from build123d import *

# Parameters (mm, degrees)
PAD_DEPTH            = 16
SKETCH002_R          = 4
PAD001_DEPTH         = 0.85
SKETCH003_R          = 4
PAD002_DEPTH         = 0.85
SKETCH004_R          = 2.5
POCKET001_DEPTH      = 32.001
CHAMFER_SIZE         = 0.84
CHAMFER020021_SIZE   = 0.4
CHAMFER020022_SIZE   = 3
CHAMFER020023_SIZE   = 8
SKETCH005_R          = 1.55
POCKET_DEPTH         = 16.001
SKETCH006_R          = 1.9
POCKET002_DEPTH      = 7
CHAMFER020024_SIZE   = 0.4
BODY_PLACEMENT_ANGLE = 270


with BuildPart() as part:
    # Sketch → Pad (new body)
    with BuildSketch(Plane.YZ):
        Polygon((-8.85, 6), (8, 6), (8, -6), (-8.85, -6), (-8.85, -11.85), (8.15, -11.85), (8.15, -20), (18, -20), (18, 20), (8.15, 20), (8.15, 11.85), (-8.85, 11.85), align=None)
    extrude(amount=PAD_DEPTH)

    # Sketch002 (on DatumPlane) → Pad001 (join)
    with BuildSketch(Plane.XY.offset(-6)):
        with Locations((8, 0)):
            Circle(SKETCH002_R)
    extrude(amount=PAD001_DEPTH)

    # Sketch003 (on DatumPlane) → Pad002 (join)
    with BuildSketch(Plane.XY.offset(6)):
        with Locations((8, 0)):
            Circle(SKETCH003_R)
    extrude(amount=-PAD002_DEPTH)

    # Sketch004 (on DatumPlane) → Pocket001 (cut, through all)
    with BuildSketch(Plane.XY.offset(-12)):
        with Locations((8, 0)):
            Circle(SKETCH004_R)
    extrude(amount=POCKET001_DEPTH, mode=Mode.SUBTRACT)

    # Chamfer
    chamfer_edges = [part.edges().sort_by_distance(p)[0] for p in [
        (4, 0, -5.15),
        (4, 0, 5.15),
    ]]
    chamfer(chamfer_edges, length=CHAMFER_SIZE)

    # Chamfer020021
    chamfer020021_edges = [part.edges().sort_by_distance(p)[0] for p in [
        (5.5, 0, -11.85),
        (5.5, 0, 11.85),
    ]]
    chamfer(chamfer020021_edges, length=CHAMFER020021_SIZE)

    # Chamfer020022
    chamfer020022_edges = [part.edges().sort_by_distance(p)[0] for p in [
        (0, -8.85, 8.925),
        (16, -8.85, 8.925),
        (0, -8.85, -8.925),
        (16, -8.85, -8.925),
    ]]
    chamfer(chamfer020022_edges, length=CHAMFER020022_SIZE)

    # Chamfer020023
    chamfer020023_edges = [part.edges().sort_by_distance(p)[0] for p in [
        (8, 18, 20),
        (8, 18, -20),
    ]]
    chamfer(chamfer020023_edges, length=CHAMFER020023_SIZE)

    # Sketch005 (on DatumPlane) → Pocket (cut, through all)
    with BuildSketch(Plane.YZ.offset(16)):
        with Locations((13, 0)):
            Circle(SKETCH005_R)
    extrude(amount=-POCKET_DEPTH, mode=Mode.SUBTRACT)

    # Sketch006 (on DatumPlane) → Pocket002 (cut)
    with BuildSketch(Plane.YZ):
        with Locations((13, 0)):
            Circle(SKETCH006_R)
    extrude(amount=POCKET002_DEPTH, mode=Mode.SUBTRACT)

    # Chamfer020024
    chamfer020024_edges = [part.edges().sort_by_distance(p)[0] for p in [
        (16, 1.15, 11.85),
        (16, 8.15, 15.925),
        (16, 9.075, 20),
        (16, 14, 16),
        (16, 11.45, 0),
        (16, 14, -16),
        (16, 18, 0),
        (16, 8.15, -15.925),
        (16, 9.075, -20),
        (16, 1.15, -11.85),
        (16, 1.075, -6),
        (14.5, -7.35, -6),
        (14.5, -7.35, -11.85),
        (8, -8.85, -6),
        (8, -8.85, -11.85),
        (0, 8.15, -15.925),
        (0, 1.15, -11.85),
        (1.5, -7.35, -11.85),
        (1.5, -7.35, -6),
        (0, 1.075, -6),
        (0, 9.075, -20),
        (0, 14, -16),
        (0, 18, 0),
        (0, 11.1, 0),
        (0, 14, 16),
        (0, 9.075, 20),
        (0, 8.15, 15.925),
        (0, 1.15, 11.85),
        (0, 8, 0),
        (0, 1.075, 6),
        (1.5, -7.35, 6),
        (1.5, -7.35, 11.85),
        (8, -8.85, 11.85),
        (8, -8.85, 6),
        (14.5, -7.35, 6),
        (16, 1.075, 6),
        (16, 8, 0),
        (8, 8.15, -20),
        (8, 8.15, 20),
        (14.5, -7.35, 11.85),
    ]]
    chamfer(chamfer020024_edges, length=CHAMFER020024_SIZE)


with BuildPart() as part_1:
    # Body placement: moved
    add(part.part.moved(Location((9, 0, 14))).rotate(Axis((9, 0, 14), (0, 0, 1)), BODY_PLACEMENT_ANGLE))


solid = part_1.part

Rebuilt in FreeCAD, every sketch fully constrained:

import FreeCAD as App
import Part
import Sketcher
Q = App.Units.Quantity


def edges_at(feature, points):
    """Names of the edges that pass closest to the given points."""
    edges = feature.Shape.Edges
    near = lambda p: min(range(len(edges)), key=lambda i: edges[i].distToShape(Part.Vertex(*p))[0])
    return sorted({f"Edge{near(p) + 1}" for p in points})


def add_polygon(sketch, points):
    """Adds a closed chain of lines whose ends are joined by coincident constraints."""
    first, n = sketch.GeometryCount, len(points)
    for a, b in zip(points, points[1:] + points[:1]):
        sketch.addGeometry(Part.LineSegment(App.Vector(*a, 0), App.Vector(*b, 0)), False)
    for i in range(n):
        sketch.addConstraint(Sketcher.Constraint("Coincident", first + i, 2, first + (i + 1) % n, 1))

doc = App.newDocument("Part")
params = doc.addObject("Spreadsheet::Sheet", "Params")
for row, (alias, value) in enumerate([
    ("sketch1_width", "17 mm"),
    ("sketch1_height", "12 mm"),
    ("sketch1_height2", "40 mm"),
    ("sketch1_width2", "16.85 mm"),
    ("sketch1_height3", "5.85 mm"),
    ("pad1_length", "16 mm"),
    ("sketch2_diameter", "8 mm"),
    ("pad2_length", "0.85 mm"),
    ("sketch3_diameter", "8 mm"),
    ("pad3_length", "0.85 mm"),
    ("sketch4_diameter", "5 mm"),
    ("chamfer_size", "0.84 mm"),
    ("chamfer2_size", "0.4 mm"),
    ("chamfer3_size", "3 mm"),
    ("chamfer4_size", "8 mm"),
    ("sketch5_diameter", "3.1 mm"),
    ("sketch6_diameter", "3.8 mm"),
    ("pocket3_length", "7 mm"),
    ("chamfer5_size", "0.4 mm"),
], start=1):
    params.set(f"A{row}", alias)
    params.set(f"B{row}", "=" + value)
    params.setAlias(f"B{row}", alias)

body = doc.addObject("PartDesign::Body", "Body")

sketch1 = doc.addObject("Sketcher::SketchObject", "Sketch")
body.addObject(sketch1)
sketch1.AttachmentSupport = (doc.YZ_Plane, [""])
sketch1.MapMode = "FlatFace"
add_polygon(sketch1, [(-9, 6), (8, 6), (8, -6), (-9, -6), (-9, -12), (8, -12), (8, -20), (18, -20), (18, 20), (8, 20), (8, 12), (-9, 12)])
sketch1.addConstraint(Sketcher.Constraint("Horizontal", 0))
sketch1.addConstraint(Sketcher.Constraint("Vertical", 1))
sketch1.addConstraint(Sketcher.Constraint("Horizontal", 2))
sketch1.addConstraint(Sketcher.Constraint("Vertical", 3))
sketch1.addConstraint(Sketcher.Constraint("Horizontal", 4))
sketch1.addConstraint(Sketcher.Constraint("Vertical", 5))
sketch1.addConstraint(Sketcher.Constraint("Horizontal", 6))
sketch1.addConstraint(Sketcher.Constraint("Vertical", 7))
sketch1.addConstraint(Sketcher.Constraint("Horizontal", 8))
sketch1.addConstraint(Sketcher.Constraint("Vertical", 9))
sketch1.addConstraint(Sketcher.Constraint("Horizontal", 10))
sketch1.addConstraint(Sketcher.Constraint("Vertical", 11))
sketch1.addConstraint(Sketcher.Constraint("Symmetric", 5, 2, 8, 2, -1))
sketch1.addConstraint(Sketcher.Constraint("Symmetric", 3, 2, 10, 2, -1))
sketch1.addConstraint(Sketcher.Constraint("Equal", 3, 11))
sketch1.addConstraint(Sketcher.Constraint("DistanceX", 4, 1, 4, 2, Q("17 mm")))
sketch1.addConstraint(Sketcher.Constraint("DistanceY", 1, 2, 1, 1, Q("12 mm")))
sketch1.addConstraint(Sketcher.Constraint("DistanceY", 7, 1, 7, 2, Q("40 mm")))
sketch1.addConstraint(Sketcher.Constraint("DistanceX", -1, 1, 0, 2, Q("8 mm")))
sketch1.addConstraint(Sketcher.Constraint("DistanceX", -1, 1, 6, 2, Q("18 mm")))
sketch1.addConstraint(Sketcher.Constraint("DistanceX", 0, 1, 0, 2, Q("16.85 mm")))
sketch1.addConstraint(Sketcher.Constraint("DistanceY", 3, 2, 3, 1, Q("5.85 mm")))
sketch1.setExpression("Constraints[27]", "Params.sketch1_width")
sketch1.setExpression("Constraints[28]", "Params.sketch1_height")
sketch1.setExpression("Constraints[29]", "Params.sketch1_height2")
sketch1.setExpression("Constraints[32]", "Params.sketch1_width2")
sketch1.setExpression("Constraints[33]", "Params.sketch1_height3")
pad1 = doc.addObject("PartDesign::Pad", "Pad")
body.addObject(pad1)
pad1.Profile = sketch1
pad1.setExpression("Length", "Params.pad1_length")

sketch2 = doc.addObject("Sketcher::SketchObject", "Sketch001")
body.addObject(sketch2)
sketch2.AttachmentSupport = (doc.XY_Plane, [""])
sketch2.MapMode = "FlatFace"
sketch2.AttachmentOffset = App.Placement(App.Vector(0, 0, -6), App.Rotation())
sketch2.addGeometry(Part.Circle(App.Vector(8, 0, 0), App.Vector(0, 0, 1), 4), False)
sketch2.addConstraint(Sketcher.Constraint("PointOnObject", 0, 3, -1))
sketch2.addConstraint(Sketcher.Constraint("Diameter", 0, Q("8 mm")))
sketch2.addConstraint(Sketcher.Constraint("DistanceX", -1, 1, 0, 3, Q("8 mm")))
sketch2.setExpression("Constraints[1]", "Params.sketch2_diameter")
pad2 = doc.addObject("PartDesign::Pad", "Pad001")
body.addObject(pad2)
pad2.Profile = sketch2
pad2.setExpression("Length", "Params.pad2_length")

sketch3 = doc.addObject("Sketcher::SketchObject", "Sketch002")
body.addObject(sketch3)
sketch3.AttachmentSupport = (doc.XY_Plane, [""])
sketch3.MapMode = "FlatFace"
sketch3.AttachmentOffset = App.Placement(App.Vector(0, 0, 6), App.Rotation())
sketch3.addGeometry(Part.Circle(App.Vector(8, 0, 0), App.Vector(0, 0, 1), 4), False)
sketch3.addConstraint(Sketcher.Constraint("PointOnObject", 0, 3, -1))
sketch3.addConstraint(Sketcher.Constraint("Diameter", 0, Q("8 mm")))
sketch3.addConstraint(Sketcher.Constraint("DistanceX", -1, 1, 0, 3, Q("8 mm")))
sketch3.setExpression("Constraints[1]", "Params.sketch3_diameter")
pad3 = doc.addObject("PartDesign::Pad", "Pad002")
body.addObject(pad3)
pad3.Profile = sketch3
pad3.setExpression("Length", "Params.pad3_length")
pad3.Reversed = True

sketch4 = doc.addObject("Sketcher::SketchObject", "Sketch003")
body.addObject(sketch4)
sketch4.AttachmentSupport = (doc.XY_Plane, [""])
sketch4.MapMode = "FlatFace"
sketch4.AttachmentOffset = App.Placement(App.Vector(0, 0, -12), App.Rotation())
sketch4.addGeometry(Part.Circle(App.Vector(8, 0, 0), App.Vector(0, 0, 1), 2.5), False)
sketch4.addConstraint(Sketcher.Constraint("PointOnObject", 0, 3, -1))
sketch4.addConstraint(Sketcher.Constraint("Diameter", 0, Q("5 mm")))
sketch4.addConstraint(Sketcher.Constraint("DistanceX", -1, 1, 0, 3, Q("8 mm")))
sketch4.setExpression("Constraints[1]", "Params.sketch4_diameter")
pocket1 = doc.addObject("PartDesign::Pocket", "Pocket")
body.addObject(pocket1)
pocket1.Profile = sketch4
pocket1.Type = "ThroughAll"
pocket1.Reversed = True
doc.recompute()

chamfer = doc.addObject("PartDesign::Chamfer", "Chamfer")
body.addObject(chamfer)
chamfer.Base = (pocket1, edges_at(pocket1, [(4, 0, -5.15), (4, 0, 5.15)]))
chamfer.setExpression("Size", "Params.chamfer_size")
doc.recompute()

chamfer2 = doc.addObject("PartDesign::Chamfer", "Chamfer001")
body.addObject(chamfer2)
chamfer2.Base = (chamfer, edges_at(chamfer, [(5.5, 0, -11.85), (5.5, 0, 11.85)]))
chamfer2.setExpression("Size", "Params.chamfer2_size")
doc.recompute()

chamfer3 = doc.addObject("PartDesign::Chamfer", "Chamfer002")
body.addObject(chamfer3)
chamfer3.Base = (chamfer2, edges_at(chamfer2, [
    (0, -8.85, 8.925),
    (16, -8.85, 8.925),
    (0, -8.85, -8.925),
    (16, -8.85, -8.925),
]))
chamfer3.setExpression("Size", "Params.chamfer3_size")
doc.recompute()

chamfer4 = doc.addObject("PartDesign::Chamfer", "Chamfer003")
body.addObject(chamfer4)
chamfer4.Base = (chamfer3, edges_at(chamfer3, [(8, 18, 20), (8, 18, -20)]))
chamfer4.setExpression("Size", "Params.chamfer4_size")

sketch5 = doc.addObject("Sketcher::SketchObject", "Sketch004")
body.addObject(sketch5)
sketch5.AttachmentSupport = (doc.YZ_Plane, [""])
sketch5.MapMode = "FlatFace"
sketch5.AttachmentOffset = App.Placement(App.Vector(0, 0, 16), App.Rotation())
sketch5.addGeometry(Part.Circle(App.Vector(13, 0, 0), App.Vector(0, 0, 1), 1.6), False)
sketch5.addConstraint(Sketcher.Constraint("PointOnObject", 0, 3, -1))
sketch5.addConstraint(Sketcher.Constraint("Diameter", 0, Q("3.1 mm")))
sketch5.addConstraint(Sketcher.Constraint("DistanceX", -1, 1, 0, 3, Q("13 mm")))
sketch5.setExpression("Constraints[1]", "Params.sketch5_diameter")
pocket2 = doc.addObject("PartDesign::Pocket", "Pocket001")
body.addObject(pocket2)
pocket2.Profile = sketch5
pocket2.Type = "ThroughAll"

sketch6 = doc.addObject("Sketcher::SketchObject", "Sketch005")
body.addObject(sketch6)
sketch6.AttachmentSupport = (doc.YZ_Plane, [""])
sketch6.MapMode = "FlatFace"
sketch6.addGeometry(Part.Circle(App.Vector(13, 0, 0), App.Vector(0, 0, 1), 1.9), False)
sketch6.addConstraint(Sketcher.Constraint("PointOnObject", 0, 3, -1))
sketch6.addConstraint(Sketcher.Constraint("Diameter", 0, Q("3.8 mm")))
sketch6.addConstraint(Sketcher.Constraint("DistanceX", -1, 1, 0, 3, Q("13 mm")))
sketch6.setExpression("Constraints[1]", "Params.sketch6_diameter")
pocket3 = doc.addObject("PartDesign::Pocket", "Pocket002")
body.addObject(pocket3)
pocket3.Profile = sketch6
pocket3.setExpression("Length", "Params.pocket3_length")
pocket3.Reversed = True
doc.recompute()

chamfer5 = doc.addObject("PartDesign::Chamfer", "Chamfer004")
body.addObject(chamfer5)
chamfer5.Base = (pocket3, edges_at(pocket3, [
    (16, 1.15, 11.85),
    (16, 8.15, 15.925),
    (16, 9.075, 20),
    (16, 14, 16),
    (16, 11.45, 0),
    (16, 14, -16),
    (16, 18, 0),
    (16, 8.15, -15.925),
    (16, 9.075, -20),
    (16, 1.15, -11.85),
    (16, 1.075, -6),
    (14.5, -7.35, -6),
    (14.5, -7.35, -11.85),
    (8, -8.85, -6),
    (8, -8.85, -11.85),
    (0, 8.15, -15.925),
    (0, 1.15, -11.85),
    (1.5, -7.35, -11.85),
    (1.5, -7.35, -6),
    (0, 1.075, -6),
    (0, 9.075, -20),
    (0, 14, -16),
    (0, 18, 0),
    (0, 11.1, 0),
    (0, 14, 16),
    (0, 9.075, 20),
    (0, 8.15, 15.925),
    (0, 1.15, 11.85),
    (0, 8, 0),
    (0, 1.075, 6),
    (1.5, -7.35, 6),
    (1.5, -7.35, 11.85),
    (8, -8.85, 11.85),
    (8, -8.85, 6),
    (14.5, -7.35, 6),
    (16, 1.075, 6),
    (16, 8, 0),
    (8, 8.15, -20),
    (8, 8.15, 20),
    (14.5, -7.35, 11.85),
]))
chamfer5.setExpression("Size", "Params.chamfer5_size")
body2 = doc.addObject("PartDesign::Body", "Body001")
doc.recompute()

body.Placement = App.Placement(App.Vector(9, 0, 14), App.Rotation(App.Vector(0, 0, 1), 270))
boolean = doc.addObject("PartDesign::Boolean", "Boolean")
body2.addObject(boolean)
boolean.Type = "Fuse"
boolean.addObjects([body])

doc.recompute()
